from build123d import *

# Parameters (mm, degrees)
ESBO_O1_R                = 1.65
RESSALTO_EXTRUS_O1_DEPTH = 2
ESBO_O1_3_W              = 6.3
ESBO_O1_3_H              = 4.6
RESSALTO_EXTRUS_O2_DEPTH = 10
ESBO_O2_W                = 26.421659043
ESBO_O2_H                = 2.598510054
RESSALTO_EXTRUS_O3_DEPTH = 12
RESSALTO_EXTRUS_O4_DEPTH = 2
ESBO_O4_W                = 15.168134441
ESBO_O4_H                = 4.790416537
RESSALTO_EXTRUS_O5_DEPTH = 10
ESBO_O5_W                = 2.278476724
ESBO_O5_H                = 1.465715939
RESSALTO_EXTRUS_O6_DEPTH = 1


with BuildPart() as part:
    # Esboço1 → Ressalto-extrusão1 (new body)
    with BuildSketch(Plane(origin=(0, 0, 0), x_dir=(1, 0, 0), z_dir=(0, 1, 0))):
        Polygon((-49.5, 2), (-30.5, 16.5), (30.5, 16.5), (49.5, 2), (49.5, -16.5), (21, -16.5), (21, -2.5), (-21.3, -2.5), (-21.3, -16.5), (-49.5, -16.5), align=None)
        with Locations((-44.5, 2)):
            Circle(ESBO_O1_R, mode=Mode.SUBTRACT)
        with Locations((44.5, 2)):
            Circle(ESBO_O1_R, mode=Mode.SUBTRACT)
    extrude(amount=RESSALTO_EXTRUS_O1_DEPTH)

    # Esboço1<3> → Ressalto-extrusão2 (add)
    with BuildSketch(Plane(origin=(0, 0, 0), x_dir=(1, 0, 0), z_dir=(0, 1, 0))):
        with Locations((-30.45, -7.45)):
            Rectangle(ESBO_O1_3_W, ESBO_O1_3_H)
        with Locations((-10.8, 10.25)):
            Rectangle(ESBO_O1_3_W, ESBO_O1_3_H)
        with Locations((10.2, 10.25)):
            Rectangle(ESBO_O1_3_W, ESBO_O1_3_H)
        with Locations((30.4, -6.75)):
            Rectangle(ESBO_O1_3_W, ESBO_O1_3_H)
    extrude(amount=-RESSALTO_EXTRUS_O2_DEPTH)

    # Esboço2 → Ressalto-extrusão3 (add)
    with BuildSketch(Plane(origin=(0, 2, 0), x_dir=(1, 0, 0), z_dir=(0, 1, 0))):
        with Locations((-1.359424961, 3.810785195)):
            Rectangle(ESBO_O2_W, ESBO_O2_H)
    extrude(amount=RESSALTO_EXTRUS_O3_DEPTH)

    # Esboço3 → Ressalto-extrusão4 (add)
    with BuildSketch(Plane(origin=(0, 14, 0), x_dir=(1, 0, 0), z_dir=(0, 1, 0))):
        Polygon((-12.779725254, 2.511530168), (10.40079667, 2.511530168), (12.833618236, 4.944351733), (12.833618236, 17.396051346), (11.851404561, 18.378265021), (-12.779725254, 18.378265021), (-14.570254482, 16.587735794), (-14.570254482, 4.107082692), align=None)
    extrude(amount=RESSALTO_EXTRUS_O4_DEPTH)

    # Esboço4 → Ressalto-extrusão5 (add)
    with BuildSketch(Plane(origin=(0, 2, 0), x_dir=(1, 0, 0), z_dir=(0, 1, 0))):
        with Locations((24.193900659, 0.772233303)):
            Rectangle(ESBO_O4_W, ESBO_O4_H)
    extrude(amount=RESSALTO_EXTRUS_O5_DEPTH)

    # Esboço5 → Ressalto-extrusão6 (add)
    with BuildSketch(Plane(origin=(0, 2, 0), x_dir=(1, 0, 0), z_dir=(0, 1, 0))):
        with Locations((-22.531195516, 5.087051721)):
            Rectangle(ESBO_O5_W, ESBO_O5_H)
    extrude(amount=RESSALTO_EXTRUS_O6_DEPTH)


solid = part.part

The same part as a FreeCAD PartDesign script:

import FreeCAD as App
import Part
import Sketcher

V = App.Vector
Q = App.Units.Quantity


def add_polygon(sketch, points):
    """Adds a closed chain of lines whose ends are joined by coincident constraints."""
    first, n = sketch.GeometryCount, len(points)
    for a, b in zip(points, points[1:] + points[:1]):
        sketch.addGeometry(Part.LineSegment(App.Vector(*a, 0), App.Vector(*b, 0)), False)
    for i in range(n):
        sketch.addConstraint(Sketcher.Constraint("Coincident", first + i, 2, first + (i + 1) % n, 1))

doc = App.newDocument("Part")
body = doc.addObject("PartDesign::Body", "Body")

# Sketch on XZ plane
sketch1 = body.newObject("Sketcher::SketchObject", "Sketch")
sketch1.AttachmentSupport = (doc.getObject("XZ_Plane"), [""])
sketch1.MapMode = "FlatFace"
add_polygon(sketch1, [(-30.5, -16.5), (-49.5, -2), (-49.5, 16.5), (-21.3, 16.5), (-21.3, 2.5), (21, 2.5), (21, 16.5), (49.5, 16.5), (49.5, -2), (30.5, -16.5)])  # lines 0-9
sketch1.addGeometry(Part.Circle(V(44.5, -2, 0), V(0, 0, 1), 1.6), False)  # 10
sketch1.addGeometry(Part.Circle(V(-44.5, -2, 0), V(0, 0, 1), 1.6), False)  # 11
sketch1.addConstraint(Sketcher.Constraint("Vertical", 1))
sketch1.addConstraint(Sketcher.Constraint("Horizontal", 2))
sketch1.addConstraint(Sketcher.Constraint("Vertical", 3))
sketch1.addConstraint(Sketcher.Constraint("Horizontal", 4))
sketch1.addConstraint(Sketcher.Constraint("Vertical", 5))
sketch1.addConstraint(Sketcher.Constraint("Horizontal", 6))
sketch1.addConstraint(Sketcher.Constraint("Vertical", 7))
sketch1.addConstraint(Sketcher.Constraint("Horizontal", 9))
sketch1.addConstraint(Sketcher.Constraint("Equal", 10, 11))
sketch1.addConstraint(Sketcher.Constraint("Symmetric", 10, 3, 11, 3, -2))
sketch1.addConstraint(Sketcher.Constraint("Symmetric", 1, 2, 6, 2, -2))
sketch1.addConstraint(Sketcher.Constraint("Horizontal", 11, 3, 0, 2))
sketch1.addConstraint(Sketcher.Constraint("Horizontal", 0, 2, 7, 2))
sketch1.addConstraint(Sketcher.Constraint("Equal", 0, 8))
sketch1.addConstraint(Sketcher.Constraint("Diameter", 10, 3.3))
sketch1.addConstraint(Sketcher.Constraint("DistanceX", 9, 2, 9, 1, 61.0))
sketch1.addConstraint(Sketcher.Constraint("DistanceY", 3, 2, 3, 1, 14.0))
sketch1.addConstraint(Sketcher.Constraint("DistanceX", 2, 1, 2, 2, 28.2))
sketch1.addConstraint(Sketcher.Constraint("DistanceX", 4, 1, 4, 2, 42.3))
sketch1.addConstraint(Sketcher.Constraint("DistanceX", 6, 1, 6, 2, 28.5))
sketch1.addConstraint(Sketcher.Constraint("DistanceY", 1, 1, 1, 2, 18.5))
sketch1.addConstraint(Sketcher.Constraint("DistanceY", 10, 3, -1, 1, 2.0))
sketch1.addConstraint(Sketcher.Constraint("DistanceX", 11, 3, 10, 3, 89.0))
sketch1.addConstraint(Sketcher.Constraint("DistanceY", 8, 2, 4, 2, 19.0))
pad1 = body.newObject("PartDesign::Pad", "Pad")
pad1.Profile = sketch1
pad1.Length = 2
pad1.Reversed = True

# Sketch on XZ plane
sketch2 = body.newObject("Sketcher::SketchObject", "Sketch001")
sketch2.AttachmentSupport = (doc.getObject("XZ_Plane"), [""])
sketch2.MapMode = "FlatFace"
add_polygon(sketch2, [(-33.6, 5.2), (-33.6, 9.8), (-27.3, 9.8), (-27.3, 5.2)])  # lines 0-3
add_polygon(sketch2, [(-13.9, -12.6), (-13.9, -8), (-7.7, -8), (-7.7, -12.6)])  # lines 4-7
add_polygon(sketch2, [(7, -12.6), (7, -8), (13.3, -8), (13.3, -12.6)])  # lines 8-11
add_polygon(sketch2, [(27.2, 4.5), (27.2, 9.1), (33.5, 9.1), (33.5, 4.5)])  # lines 12-15
sketch2.addConstraint(Sketcher.Constraint("Vertical", 0))
sketch2.addConstraint(Sketcher.Constraint("Horizontal", 1))
sketch2.addConstraint(Sketcher.Constraint("Vertical", 2))
sketch2.addConstraint(Sketcher.Constraint("Horizontal", 3))
sketch2.addConstraint(Sketcher.Constraint("Vertical", 4))
sketch2.addConstraint(Sketcher.Constraint("Horizontal", 5))
sketch2.addConstraint(Sketcher.Constraint("Vertical", 6))
sketch2.addConstraint(Sketcher.Constraint("Horizontal", 7))
sketch2.addConstraint(Sketcher.Constraint("Vertical", 8))
sketch2.addConstraint(Sketcher.Constraint("Horizontal", 9))
sketch2.addConstraint(Sketcher.Constraint("Vertical", 10))
sketch2.addConstraint(Sketcher.Constraint("Horizontal", 11))
sketch2.addConstraint(Sketcher.Constraint("Vertical", 12))
sketch2.addConstraint(Sketcher.Constraint("Horizontal", 13))
sketch2.addConstraint(Sketcher.Constraint("Vertical", 14))
sketch2.addConstraint(Sketcher.Constraint("Horizontal", 15))
sketch2.addConstraint(Sketcher.Constraint("Horizontal", 5, 2, 8, 2))
sketch2.addConstraint(Sketcher.Constraint("Horizontal", 7, 2, 10, 2))
sketch2.addConstraint(Sketcher.Constraint("Equal", 3, 5))
sketch2.addConstraint(Sketcher.Constraint("Equal", 7, 9))
sketch2.addConstraint(Sketcher.Constraint("Equal", 11, 13))
sketch2.addConstraint(Sketcher.Constraint("Equal", 2, 4))
sketch2.addConstraint(Sketcher.Constraint("Equal", 10, 12))
sketch2.addConstraint(Sketcher.Constraint("DistanceX", 1, 1, 1, 2, 6.3))
sketch2.addConstraint(Sketcher.Constraint("DistanceY", 0, 1, 0, 2, 4.6))
sketch2.addConstraint(Sketcher.Constraint("DistanceX", 4, 2, 8, 2, 21.0))
sketch2.addConstraint(Sketcher.Constraint("DistanceY", 9, 2, 12, 2, 17.0))
sketch2.addConstraint(Sketcher.Constraint("DistanceX", 0, 2, -1, 1, 33.6))
sketch2.addConstraint(Sketcher.Constraint("DistanceY", 4, 2, 2, 2, 13.1))
sketch2.addConstraint(Sketcher.Constraint("DistanceX", 9, 2, 12, 2, 13.9))
sketch2.addConstraint(Sketcher.Constraint("DistanceY", -1, 1, 0, 2, 9.75))
sketch2.addConstraint(Sketcher.Constraint("DistanceX", 4, 2, -1, 1, 13.95))
pad2 = body.newObject("PartDesign::Pad", "Pad001")
pad2.Profile = sketch2
pad2.Length = 10

# Sketch on XZ plane
sketch3 = body.newObject("Sketcher::SketchObject", "Sketch002")
sketch3.AttachmentSupport = (doc.getObject("XZ_Plane"), [""])
sketch3.MapMode = "FlatFace"
sketch3.AttachmentOffset = App.Placement(V(0, 0, -2), App.Rotation())
add_polygon(sketch3, [(-14.6, -5.1), (-14.6, -2.5), (11.9, -2.5), (11.9, -5.1)])  # lines 0-3
sketch3.addConstraint(Sketcher.Constraint("Vertical", 0))
sketch3.addConstraint(Sketcher.Constraint("Horizontal", 1))
sketch3.addConstraint(Sketcher.Constraint("Vertical", 2))
sketch3.addConstraint(Sketcher.Constraint("Horizontal", 3))
sketch3.addConstraint(Sketcher.Constraint("DistanceX", 1, 1, 1, 2, 26.421659))
sketch3.addConstraint(Sketcher.Constraint("DistanceY", 0, 1, 0, 2, 2.59851))
sketch3.addConstraint(Sketcher.Constraint("DistanceY", 0, 2, -1, 1, 2.51153))
sketch3.addConstraint(Sketcher.Constraint("DistanceX", 0, 2, -1, 1, 14.570254))
pad3 = body.newObject("PartDesign::Pad", "Pad002")
pad3.Profile = sketch3
pad3.Length = 12
pad3.Reversed = True

# Sketch on XZ plane
sketch4 = body.newObject("Sketcher::SketchObject", "Sketch003")
sketch4.AttachmentSupport = (doc.getObject("XZ_Plane"), [""])
sketch4.MapMode = "FlatFace"
sketch4.AttachmentOffset = App.Placement(V(0, 0, -14), App.Rotation())
add_polygon(sketch4, [(-12.8, -2.5), (10.4, -2.5), (12.8, -4.9), (12.8, -17.4), (11.9, -18.4), (-12.8, -18.4), (-14.6, -16.6), (-14.6, -4.1)])  # lines 0-7
sketch4.addConstraint(Sketcher.Constraint("Horizontal", 0))
sketch4.addConstraint(Sketcher.Constraint("Vertical", 2))
sketch4.addConstraint(Sketcher.Constraint("Horizontal", 4))
sketch4.addConstraint(Sketcher.Constraint("Vertical", 6))
sketch4.addConstraint(Sketcher.Constraint("Perpendicular", 1, 3))
sketch4.addConstraint(Sketcher.Constraint("Perpendicular", 3, 5))
sketch4.addConstraint(Sketcher.Constraint("Vertical", 4, 2, 7, 2))
sketch4.addConstraint(Sketcher.Constraint("Angle", 1, Q("-45 deg")))
sketch4.addConstraint(Sketcher.Constraint("DistanceY", 2, 2, 2, 1, 12.4517))
sketch4.addConstraint(Sketcher.Constraint("DistanceX", 0, 1, 0, 2, 23.180522))
sketch4.addConstraint(Sketcher.Constraint("DistanceX", 4, 2, 4, 1, 24.63113))
sketch4.addConstraint(Sketcher.Constraint("Distance", 1, 3.440529))
sketch4.addConstraint(Sketcher.Constraint("Distance", 5, 2.532191))
sketch4.addConstraint(Sketcher.Constraint("DistanceY", 6, 1, 6, 2, 12.480653))
sketch4.addConstraint(Sketcher.Constraint("DistanceY", 0, 2, -1, 1, 2.51153))
sketch4.addConstraint(Sketcher.Constraint("DistanceX", -1, 1, 1, 2, 12.833618))
pad4 = body.newObject("PartDesign::Pad", "Pad003")
pad4.Profile = sketch4
pad4.Length = 2
pad4.Reversed = True

# Sketch on XZ plane
sketch5 = body.newObject("Sketcher::SketchObject", "Sketch004")
sketch5.AttachmentSupport = (doc.getObject("XZ_Plane"), [""])
sketch5.MapMode = "FlatFace"
sketch5.AttachmentOffset = App.Placement(V(0, 0, -2), App.Rotation())
add_polygon(sketch5, [(16.6, -3.2), (16.6, 1.6), (31.8, 1.6), (31.8, -3.2)])  # lines 0-3
sketch5.addConstraint(Sketcher.Constraint("Vertical", 0))
sketch5.addConstraint(Sketcher.Constraint("Horizontal", 1))
sketch5.addConstraint(Sketcher.Constraint("Vertical", 2))
sketch5.addConstraint(Sketcher.Constraint("Horizontal", 3))
sketch5.addConstraint(Sketcher.Constraint("DistanceX", 1, 1, 1, 2, 15.168134))
sketch5.addConstraint(Sketcher.Constraint("DistanceY", 0, 1, 0, 2, 4.790417))
sketch5.addConstraint(Sketcher.Constraint("DistanceY", 2, 2, -1, 1, 3.167442))
sketch5.addConstraint(Sketcher.Constraint("DistanceX", -1, 1, 0, 2, 16.609833))
pad5 = body.newObject("PartDesign::Pad", "Pad004")
pad5.Profile = sketch5
pad5.Length = 10
pad5.Reversed = True

# Sketch on XZ plane
sketch6 = body.newObject("Sketcher::SketchObject", "Sketch005")
sketch6.AttachmentSupport = (doc.getObject("XZ_Plane"), [""])
sketch6.MapMode = "FlatFace"
sketch6.AttachmentOffset = App.Placement(V(0, 0, -2), App.Rotation())
add_polygon(sketch6, [(-23.7, -5.8), (-23.7, -4.4), (-21.4, -4.4), (-21.4, -5.8)])  # lines 0-3
sketch6.addConstraint(Sketcher.Constraint("Vertical", 0))
sketch6.addConstraint(Sketcher.Constraint("Horizontal", 1))
sketch6.addConstraint(Sketcher.Constraint("Vertical", 2))
sketch6.addConstraint(Sketcher.Constraint("Horizontal", 3))
sketch6.addConstraint(Sketcher.Constraint("DistanceX", 1, 1, 1, 2, 2.278477))
sketch6.addConstraint(Sketcher.Constraint("DistanceY", 0, 1, 0, 2, 1.465716))
sketch6.addConstraint(Sketcher.Constraint("DistanceY", 2, 2, -1, 1, 5.81991))
sketch6.addConstraint(Sketcher.Constraint("DistanceX", 0, 2, -1, 1, 23.670434))
pad6 = body.newObject("PartDesign::Pad", "Pad005")
pad6.Profile = sketch6
pad6.Length = 1
pad6.Reversed = True

doc.recompute()
